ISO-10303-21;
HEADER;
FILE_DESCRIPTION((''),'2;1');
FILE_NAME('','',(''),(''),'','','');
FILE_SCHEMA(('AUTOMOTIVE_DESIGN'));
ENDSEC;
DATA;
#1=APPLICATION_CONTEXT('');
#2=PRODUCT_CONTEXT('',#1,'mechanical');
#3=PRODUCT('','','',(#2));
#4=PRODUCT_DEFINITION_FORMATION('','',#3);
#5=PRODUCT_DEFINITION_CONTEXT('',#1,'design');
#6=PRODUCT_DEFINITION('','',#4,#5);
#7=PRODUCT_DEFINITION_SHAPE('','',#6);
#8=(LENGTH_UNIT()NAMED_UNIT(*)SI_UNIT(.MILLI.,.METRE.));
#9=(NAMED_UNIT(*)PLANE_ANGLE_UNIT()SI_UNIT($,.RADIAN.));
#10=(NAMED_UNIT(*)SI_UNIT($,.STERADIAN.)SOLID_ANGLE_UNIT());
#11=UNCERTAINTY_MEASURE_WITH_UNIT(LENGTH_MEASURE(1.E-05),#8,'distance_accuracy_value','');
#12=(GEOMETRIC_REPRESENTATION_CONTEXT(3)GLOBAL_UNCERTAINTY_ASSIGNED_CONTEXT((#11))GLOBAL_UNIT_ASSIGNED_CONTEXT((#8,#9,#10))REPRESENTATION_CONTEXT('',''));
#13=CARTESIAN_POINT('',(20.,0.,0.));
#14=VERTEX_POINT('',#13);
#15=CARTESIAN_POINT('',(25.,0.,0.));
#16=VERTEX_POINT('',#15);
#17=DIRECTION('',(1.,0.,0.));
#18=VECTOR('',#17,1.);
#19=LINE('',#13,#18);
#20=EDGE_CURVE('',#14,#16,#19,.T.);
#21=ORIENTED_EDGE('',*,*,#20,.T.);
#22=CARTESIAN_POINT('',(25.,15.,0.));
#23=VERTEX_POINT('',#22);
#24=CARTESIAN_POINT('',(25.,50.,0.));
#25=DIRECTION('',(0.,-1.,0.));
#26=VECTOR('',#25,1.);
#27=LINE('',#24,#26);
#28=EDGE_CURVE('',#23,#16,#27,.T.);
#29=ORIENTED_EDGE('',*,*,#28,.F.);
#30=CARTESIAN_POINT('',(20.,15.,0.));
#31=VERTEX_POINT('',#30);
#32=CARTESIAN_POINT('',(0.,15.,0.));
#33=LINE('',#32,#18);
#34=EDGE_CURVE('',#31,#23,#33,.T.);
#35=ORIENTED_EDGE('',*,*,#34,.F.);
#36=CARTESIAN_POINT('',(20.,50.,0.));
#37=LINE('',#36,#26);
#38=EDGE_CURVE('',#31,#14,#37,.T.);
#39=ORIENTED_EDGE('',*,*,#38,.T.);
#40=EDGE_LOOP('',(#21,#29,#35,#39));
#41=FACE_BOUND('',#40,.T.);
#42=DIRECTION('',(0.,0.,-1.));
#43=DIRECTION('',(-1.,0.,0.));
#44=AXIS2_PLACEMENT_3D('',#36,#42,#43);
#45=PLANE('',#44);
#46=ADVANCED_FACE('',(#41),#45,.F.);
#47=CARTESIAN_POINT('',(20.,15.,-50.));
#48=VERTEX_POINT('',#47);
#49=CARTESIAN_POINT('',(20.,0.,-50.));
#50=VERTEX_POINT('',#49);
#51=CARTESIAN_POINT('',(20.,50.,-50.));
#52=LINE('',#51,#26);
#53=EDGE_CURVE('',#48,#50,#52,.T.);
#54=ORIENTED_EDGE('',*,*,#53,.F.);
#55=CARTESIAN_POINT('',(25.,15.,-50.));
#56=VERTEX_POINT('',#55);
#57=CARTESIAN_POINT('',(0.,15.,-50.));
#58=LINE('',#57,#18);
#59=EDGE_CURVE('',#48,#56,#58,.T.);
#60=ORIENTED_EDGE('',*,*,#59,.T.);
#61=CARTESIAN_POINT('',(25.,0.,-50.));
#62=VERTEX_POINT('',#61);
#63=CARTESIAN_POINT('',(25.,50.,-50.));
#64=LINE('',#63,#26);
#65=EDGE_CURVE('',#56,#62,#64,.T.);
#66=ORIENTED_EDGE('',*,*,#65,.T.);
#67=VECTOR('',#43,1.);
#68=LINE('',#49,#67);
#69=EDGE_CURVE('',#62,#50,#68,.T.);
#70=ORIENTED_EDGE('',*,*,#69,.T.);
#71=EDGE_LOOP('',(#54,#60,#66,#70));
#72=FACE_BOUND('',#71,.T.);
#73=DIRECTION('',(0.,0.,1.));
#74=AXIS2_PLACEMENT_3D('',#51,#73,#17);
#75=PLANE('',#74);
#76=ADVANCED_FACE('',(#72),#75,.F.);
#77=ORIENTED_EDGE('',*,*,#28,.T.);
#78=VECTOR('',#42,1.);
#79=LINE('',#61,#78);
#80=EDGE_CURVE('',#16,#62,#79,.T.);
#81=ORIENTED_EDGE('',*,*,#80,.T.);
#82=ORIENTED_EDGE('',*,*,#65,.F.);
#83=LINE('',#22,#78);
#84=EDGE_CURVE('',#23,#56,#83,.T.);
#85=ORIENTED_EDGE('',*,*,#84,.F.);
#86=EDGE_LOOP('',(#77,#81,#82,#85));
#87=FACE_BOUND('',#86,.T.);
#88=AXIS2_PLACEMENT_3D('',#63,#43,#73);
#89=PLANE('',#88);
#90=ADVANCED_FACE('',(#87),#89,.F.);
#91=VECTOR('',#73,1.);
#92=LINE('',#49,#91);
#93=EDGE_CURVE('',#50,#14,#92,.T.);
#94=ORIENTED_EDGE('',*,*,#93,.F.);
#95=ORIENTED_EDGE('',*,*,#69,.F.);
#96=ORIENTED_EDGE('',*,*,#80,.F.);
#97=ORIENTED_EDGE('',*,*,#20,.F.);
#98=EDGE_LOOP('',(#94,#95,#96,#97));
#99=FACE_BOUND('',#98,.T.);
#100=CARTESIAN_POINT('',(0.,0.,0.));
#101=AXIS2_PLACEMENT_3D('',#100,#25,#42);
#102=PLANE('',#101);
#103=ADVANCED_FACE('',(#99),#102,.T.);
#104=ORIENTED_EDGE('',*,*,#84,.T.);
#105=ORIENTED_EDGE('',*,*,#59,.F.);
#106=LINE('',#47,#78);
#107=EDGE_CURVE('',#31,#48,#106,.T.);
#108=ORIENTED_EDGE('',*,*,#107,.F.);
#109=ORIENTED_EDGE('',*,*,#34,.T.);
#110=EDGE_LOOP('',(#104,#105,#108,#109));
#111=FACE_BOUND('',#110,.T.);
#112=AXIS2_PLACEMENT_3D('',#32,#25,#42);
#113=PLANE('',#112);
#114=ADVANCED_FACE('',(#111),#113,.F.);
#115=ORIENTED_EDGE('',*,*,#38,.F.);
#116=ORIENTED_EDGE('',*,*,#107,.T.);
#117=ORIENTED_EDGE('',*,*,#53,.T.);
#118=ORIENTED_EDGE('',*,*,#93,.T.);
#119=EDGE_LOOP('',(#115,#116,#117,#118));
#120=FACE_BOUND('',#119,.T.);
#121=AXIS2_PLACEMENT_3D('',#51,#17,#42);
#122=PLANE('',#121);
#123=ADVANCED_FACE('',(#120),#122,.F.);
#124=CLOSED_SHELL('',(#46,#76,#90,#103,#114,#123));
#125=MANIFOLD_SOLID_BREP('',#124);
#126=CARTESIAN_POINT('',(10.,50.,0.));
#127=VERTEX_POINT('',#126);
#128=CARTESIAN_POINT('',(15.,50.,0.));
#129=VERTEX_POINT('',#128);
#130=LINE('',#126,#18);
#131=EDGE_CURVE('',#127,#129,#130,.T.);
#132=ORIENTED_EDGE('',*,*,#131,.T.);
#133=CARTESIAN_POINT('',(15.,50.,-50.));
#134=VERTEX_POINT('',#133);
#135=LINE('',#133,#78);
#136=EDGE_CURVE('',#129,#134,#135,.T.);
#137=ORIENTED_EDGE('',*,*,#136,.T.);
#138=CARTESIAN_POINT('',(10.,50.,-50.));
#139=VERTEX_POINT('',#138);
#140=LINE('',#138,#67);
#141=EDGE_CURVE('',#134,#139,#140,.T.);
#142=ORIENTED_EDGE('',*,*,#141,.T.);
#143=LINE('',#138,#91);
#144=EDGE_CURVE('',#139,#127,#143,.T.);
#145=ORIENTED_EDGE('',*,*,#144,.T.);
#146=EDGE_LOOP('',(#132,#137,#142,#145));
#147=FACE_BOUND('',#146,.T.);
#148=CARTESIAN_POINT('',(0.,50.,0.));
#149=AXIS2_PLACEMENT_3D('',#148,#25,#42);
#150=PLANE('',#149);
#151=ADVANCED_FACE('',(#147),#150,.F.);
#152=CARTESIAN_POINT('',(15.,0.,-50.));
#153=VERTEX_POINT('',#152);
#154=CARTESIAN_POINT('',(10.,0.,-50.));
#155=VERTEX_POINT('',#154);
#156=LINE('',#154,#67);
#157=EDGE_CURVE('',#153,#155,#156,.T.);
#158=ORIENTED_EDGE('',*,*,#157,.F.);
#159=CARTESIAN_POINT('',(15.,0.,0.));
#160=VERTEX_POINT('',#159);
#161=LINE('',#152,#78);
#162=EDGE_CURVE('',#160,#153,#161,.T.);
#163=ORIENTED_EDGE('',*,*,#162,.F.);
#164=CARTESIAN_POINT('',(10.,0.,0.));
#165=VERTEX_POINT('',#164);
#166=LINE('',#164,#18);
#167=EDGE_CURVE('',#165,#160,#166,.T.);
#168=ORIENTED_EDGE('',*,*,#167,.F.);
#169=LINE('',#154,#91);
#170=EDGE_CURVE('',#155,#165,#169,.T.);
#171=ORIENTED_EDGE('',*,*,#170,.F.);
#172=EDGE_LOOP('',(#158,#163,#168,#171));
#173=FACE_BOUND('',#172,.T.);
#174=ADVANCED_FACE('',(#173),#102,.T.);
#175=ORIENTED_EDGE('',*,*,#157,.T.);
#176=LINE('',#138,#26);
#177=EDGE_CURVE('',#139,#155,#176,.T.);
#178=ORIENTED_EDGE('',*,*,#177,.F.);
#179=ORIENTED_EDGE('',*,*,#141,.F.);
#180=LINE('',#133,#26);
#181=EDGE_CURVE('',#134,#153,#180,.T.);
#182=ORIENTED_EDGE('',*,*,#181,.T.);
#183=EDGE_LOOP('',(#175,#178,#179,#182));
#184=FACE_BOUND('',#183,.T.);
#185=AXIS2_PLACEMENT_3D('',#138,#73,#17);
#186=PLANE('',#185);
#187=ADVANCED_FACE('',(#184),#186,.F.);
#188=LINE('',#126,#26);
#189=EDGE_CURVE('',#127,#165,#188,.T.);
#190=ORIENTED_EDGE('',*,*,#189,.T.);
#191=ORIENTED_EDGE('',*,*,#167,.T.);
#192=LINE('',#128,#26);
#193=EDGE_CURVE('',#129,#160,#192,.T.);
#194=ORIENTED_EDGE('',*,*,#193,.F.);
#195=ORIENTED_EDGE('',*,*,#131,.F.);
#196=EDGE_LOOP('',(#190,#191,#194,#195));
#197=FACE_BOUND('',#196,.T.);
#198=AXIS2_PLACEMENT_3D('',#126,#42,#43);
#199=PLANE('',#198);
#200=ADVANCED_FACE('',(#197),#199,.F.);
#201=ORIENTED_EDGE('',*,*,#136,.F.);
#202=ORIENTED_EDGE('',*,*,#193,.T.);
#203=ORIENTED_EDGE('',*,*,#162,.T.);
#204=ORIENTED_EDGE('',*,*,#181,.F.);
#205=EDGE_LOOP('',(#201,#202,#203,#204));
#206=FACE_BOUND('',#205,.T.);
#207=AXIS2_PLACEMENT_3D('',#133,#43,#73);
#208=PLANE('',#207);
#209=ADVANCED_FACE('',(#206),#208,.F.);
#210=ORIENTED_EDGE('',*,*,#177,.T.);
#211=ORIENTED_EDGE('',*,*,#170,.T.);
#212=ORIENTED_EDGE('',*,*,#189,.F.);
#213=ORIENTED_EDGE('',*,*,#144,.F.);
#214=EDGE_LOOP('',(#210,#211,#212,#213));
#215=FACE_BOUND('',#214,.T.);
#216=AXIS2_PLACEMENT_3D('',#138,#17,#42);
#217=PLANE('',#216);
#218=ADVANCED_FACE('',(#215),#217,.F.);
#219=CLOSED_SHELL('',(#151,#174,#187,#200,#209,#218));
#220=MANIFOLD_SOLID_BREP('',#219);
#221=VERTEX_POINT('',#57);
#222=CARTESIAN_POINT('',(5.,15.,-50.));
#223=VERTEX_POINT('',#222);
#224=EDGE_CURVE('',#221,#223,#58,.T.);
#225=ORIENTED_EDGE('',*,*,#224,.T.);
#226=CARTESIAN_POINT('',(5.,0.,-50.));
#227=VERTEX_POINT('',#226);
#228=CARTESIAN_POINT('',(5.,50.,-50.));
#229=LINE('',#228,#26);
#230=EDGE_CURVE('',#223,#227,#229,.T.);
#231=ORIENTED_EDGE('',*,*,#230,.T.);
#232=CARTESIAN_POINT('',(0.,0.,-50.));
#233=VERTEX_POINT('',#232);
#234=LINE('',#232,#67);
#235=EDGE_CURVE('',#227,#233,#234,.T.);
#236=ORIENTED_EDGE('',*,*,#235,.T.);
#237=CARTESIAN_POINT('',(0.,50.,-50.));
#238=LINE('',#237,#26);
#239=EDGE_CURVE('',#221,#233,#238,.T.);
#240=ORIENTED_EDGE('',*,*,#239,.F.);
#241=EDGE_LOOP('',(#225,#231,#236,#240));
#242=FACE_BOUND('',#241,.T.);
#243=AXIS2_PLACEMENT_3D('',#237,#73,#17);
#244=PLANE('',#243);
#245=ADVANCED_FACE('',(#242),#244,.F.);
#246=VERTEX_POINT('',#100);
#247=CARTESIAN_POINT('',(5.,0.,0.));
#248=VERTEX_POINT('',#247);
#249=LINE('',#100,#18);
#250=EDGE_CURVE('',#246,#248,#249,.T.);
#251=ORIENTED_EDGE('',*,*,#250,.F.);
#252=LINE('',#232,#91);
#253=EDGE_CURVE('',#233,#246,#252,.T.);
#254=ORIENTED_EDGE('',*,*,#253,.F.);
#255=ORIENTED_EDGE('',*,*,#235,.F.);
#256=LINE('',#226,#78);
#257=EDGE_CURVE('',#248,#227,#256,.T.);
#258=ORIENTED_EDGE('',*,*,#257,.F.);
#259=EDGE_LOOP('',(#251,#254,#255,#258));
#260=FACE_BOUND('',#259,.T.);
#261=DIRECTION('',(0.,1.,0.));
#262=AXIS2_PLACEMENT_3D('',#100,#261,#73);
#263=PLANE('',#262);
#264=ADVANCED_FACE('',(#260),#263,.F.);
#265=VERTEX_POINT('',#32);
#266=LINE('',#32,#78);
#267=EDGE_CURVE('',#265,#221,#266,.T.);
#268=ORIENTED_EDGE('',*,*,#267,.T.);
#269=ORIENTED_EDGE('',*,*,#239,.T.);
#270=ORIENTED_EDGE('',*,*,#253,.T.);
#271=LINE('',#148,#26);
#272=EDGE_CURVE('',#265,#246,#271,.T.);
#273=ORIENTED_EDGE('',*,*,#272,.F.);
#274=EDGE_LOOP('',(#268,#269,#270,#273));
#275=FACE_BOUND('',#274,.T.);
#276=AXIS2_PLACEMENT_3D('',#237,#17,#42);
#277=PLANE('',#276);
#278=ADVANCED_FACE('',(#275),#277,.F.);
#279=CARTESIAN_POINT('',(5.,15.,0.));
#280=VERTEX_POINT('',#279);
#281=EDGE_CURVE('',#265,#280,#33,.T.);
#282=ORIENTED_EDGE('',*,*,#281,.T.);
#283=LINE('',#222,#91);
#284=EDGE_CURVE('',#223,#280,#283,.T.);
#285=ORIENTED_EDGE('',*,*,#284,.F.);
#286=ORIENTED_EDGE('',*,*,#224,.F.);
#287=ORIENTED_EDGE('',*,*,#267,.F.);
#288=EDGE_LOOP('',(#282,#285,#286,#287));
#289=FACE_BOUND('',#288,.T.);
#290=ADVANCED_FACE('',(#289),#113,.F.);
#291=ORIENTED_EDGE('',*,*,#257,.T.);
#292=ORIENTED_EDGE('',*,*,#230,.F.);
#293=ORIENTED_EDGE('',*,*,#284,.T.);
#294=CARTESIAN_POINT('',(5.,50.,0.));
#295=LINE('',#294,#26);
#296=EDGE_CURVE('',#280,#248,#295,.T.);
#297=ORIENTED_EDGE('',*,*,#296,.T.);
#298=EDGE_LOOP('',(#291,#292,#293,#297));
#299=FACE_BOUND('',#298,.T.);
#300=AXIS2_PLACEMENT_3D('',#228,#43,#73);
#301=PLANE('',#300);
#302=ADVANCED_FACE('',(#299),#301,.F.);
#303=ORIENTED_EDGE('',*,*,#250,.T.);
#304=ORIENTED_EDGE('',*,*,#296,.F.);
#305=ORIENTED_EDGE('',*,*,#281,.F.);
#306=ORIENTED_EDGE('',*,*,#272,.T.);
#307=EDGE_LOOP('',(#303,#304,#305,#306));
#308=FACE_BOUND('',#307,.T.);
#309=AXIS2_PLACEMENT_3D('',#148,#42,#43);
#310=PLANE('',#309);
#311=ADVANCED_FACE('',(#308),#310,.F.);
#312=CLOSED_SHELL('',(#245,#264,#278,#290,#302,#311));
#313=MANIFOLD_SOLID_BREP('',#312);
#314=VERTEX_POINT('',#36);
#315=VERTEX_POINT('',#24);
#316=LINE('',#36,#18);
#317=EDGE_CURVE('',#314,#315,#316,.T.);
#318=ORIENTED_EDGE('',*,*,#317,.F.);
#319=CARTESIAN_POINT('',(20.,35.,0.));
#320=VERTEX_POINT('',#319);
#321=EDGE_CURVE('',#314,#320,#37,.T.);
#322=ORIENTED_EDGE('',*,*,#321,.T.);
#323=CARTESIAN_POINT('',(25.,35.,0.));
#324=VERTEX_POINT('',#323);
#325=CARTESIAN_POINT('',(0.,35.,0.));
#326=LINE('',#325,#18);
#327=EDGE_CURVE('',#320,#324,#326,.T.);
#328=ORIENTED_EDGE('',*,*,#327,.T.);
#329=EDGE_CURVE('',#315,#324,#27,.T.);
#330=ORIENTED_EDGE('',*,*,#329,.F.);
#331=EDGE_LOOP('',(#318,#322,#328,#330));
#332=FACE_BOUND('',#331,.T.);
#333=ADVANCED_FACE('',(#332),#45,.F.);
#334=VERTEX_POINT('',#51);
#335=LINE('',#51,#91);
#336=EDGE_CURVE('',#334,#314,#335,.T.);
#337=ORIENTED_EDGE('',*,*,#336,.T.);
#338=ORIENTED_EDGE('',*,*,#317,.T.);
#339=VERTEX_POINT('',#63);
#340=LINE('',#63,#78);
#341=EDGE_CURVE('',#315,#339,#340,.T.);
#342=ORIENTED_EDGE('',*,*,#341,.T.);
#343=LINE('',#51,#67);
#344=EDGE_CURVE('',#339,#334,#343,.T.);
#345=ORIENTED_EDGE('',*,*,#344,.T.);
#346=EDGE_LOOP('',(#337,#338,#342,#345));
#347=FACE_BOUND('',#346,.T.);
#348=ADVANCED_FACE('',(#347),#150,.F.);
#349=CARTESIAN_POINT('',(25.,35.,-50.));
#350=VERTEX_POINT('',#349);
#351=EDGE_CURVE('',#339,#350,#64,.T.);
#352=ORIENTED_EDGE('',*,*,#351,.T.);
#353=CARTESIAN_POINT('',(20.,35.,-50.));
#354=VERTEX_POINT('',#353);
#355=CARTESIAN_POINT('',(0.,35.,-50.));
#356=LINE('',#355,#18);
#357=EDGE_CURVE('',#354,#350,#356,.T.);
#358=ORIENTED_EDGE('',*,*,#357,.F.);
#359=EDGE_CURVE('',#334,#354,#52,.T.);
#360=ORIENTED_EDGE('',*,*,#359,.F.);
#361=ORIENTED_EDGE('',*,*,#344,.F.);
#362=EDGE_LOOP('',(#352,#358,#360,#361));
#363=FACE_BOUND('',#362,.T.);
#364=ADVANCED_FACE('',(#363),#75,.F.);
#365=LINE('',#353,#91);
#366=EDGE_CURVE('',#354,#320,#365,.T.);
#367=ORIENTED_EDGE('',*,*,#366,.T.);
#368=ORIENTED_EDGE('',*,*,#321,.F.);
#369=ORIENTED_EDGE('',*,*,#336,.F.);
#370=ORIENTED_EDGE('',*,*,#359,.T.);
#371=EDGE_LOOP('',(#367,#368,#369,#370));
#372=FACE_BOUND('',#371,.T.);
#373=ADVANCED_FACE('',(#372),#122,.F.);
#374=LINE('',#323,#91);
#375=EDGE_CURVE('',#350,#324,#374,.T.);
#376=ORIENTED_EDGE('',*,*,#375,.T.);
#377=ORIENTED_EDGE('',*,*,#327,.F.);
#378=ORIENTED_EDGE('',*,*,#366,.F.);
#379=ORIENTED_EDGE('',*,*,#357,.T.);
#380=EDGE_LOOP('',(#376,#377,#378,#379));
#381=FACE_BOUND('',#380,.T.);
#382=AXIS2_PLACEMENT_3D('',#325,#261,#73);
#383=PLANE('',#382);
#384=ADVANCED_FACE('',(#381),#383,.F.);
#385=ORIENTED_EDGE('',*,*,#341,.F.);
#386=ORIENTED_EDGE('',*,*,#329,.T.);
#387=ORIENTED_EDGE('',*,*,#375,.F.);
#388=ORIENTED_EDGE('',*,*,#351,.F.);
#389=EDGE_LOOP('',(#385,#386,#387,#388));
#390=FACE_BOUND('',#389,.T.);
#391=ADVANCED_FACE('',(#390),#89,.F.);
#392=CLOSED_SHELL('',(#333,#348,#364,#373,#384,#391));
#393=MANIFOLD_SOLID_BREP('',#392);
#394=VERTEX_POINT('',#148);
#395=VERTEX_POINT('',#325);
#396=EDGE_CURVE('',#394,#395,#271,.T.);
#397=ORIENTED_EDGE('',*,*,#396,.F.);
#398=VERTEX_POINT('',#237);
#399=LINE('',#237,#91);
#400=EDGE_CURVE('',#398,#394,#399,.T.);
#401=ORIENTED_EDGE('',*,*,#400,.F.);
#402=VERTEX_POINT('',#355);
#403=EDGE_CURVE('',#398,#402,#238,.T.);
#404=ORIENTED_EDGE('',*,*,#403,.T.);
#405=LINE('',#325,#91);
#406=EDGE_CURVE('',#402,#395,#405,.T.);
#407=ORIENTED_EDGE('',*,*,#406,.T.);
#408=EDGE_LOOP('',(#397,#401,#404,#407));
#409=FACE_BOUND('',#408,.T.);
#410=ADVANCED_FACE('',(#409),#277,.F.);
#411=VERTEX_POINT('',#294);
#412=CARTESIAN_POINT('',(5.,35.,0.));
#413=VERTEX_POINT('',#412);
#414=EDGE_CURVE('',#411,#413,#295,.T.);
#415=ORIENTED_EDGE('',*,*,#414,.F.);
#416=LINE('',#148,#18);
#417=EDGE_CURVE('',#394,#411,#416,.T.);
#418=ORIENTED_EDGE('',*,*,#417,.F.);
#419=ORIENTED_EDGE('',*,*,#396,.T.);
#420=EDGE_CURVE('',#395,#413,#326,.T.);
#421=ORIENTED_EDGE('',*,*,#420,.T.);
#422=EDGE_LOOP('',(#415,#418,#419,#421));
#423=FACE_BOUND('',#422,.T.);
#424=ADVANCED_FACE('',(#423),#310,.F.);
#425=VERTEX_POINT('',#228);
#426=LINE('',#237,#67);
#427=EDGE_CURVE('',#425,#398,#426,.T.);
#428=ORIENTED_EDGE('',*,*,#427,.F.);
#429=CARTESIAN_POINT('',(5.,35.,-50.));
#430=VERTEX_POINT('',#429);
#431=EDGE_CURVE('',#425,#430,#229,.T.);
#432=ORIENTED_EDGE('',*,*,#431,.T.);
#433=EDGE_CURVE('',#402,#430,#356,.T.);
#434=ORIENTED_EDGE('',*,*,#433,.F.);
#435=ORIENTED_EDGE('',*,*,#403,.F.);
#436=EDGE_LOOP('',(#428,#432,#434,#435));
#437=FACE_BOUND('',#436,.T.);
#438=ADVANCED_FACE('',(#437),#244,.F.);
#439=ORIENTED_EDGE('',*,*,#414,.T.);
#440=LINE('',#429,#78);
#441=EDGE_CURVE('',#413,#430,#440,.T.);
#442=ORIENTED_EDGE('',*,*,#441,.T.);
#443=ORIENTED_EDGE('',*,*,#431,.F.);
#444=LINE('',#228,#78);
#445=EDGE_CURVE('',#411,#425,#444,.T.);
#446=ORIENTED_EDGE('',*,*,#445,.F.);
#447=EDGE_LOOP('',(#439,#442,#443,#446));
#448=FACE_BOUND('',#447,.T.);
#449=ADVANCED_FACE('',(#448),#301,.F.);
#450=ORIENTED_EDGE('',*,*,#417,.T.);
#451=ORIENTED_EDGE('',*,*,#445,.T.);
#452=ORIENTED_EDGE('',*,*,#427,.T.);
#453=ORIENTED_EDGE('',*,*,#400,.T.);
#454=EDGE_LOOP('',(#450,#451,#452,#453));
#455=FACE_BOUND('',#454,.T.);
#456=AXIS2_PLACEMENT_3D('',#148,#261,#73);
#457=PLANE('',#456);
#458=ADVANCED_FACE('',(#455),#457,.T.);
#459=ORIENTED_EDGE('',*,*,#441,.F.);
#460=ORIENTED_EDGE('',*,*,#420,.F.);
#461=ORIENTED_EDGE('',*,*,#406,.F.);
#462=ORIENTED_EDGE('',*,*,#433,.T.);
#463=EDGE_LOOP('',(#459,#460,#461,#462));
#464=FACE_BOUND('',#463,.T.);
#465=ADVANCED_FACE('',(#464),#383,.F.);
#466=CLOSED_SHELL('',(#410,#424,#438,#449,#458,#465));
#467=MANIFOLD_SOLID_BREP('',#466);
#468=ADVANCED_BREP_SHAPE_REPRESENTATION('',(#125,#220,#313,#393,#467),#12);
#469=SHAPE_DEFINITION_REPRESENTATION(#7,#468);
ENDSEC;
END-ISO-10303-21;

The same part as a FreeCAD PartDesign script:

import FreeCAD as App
import Part
import Sketcher


def add_polygon(sketch, points):
    """Adds a closed chain of lines whose ends are joined by coincident constraints."""
    first, n = sketch.GeometryCount, len(points)
    for a, b in zip(points, points[1:] + points[:1]):
        sketch.addGeometry(Part.LineSegment(App.Vector(*a, 0), App.Vector(*b, 0)), False)
    for i in range(n):
        sketch.addConstraint(Sketcher.Constraint("Coincident", first + i, 2, first + (i + 1) % n, 1))

doc = App.newDocument("Part")
body = doc.addObject("PartDesign::Body", "Body")

sketch1 = body.newObject("Sketcher::SketchObject", "Sketch")
sketch1.AttachmentSupport = (doc.getObject("XZ_Plane"), [""])
sketch1.MapMode = "FlatFace"
add_polygon(sketch1, [(10, -50), (10, 0), (15, 0), (15, -50)])
sketch1.addConstraint(Sketcher.Constraint("Vertical", 0))
sketch1.addConstraint(Sketcher.Constraint("Horizontal", 1))
sketch1.addConstraint(Sketcher.Constraint("Vertical", 2))
sketch1.addConstraint(Sketcher.Constraint("Horizontal", 3))
sketch1.addConstraint(Sketcher.Constraint("PointOnObject", 0, 2, -1))
sketch1.addConstraint(Sketcher.Constraint("DistanceX", 1, 1, 1, 2, 5.0))
sketch1.addConstraint(Sketcher.Constraint("DistanceY", 0, 1, 0, 2, 50.0))
sketch1.addConstraint(Sketcher.Constraint("DistanceX", -1, 1, 0, 2, 10.0))
pad1 = body.newObject("PartDesign::Pad", "Pad")
pad1.Profile = sketch1
pad1.Length = 50
pad1.Reversed = True
body2 = doc.addObject("PartDesign::Body", "Body001")

sketch2 = body2.newObject("Sketcher::SketchObject", "Sketch001")
sketch2.AttachmentSupport = (doc.getObject("XZ_Plane001"), [""])
sketch2.MapMode = "FlatFace"
add_polygon(sketch2, [(0, -50), (0, 0), (5, 0), (5, -50)])
sketch2.addConstraint(Sketcher.Constraint("Vertical", 0))
sketch2.addConstraint(Sketcher.Constraint("Horizontal", 1))
sketch2.addConstraint(Sketcher.Constraint("Vertical", 2))
sketch2.addConstraint(Sketcher.Constraint("Horizontal", 3))
sketch2.addConstraint(Sketcher.Constraint("Coincident", 0, 2, -1, 1))
sketch2.addConstraint(Sketcher.Constraint("DistanceX", 1, 1, 1, 2, 5.0))
sketch2.addConstraint(Sketcher.Constraint("DistanceY", 0, 1, 0, 2, 50.0))
pad2 = body2.newObject("PartDesign::Pad", "Pad001")
pad2.Profile = sketch2
pad2.Length = 50
pad2.Reversed = True
body3 = doc.addObject("PartDesign::Body", "Body002")

sketch3 = body3.newObject("Sketcher::SketchObject", "Sketch002")
sketch3.AttachmentSupport = (doc.getObject("XZ_Plane002"), [""])
sketch3.MapMode = "FlatFace"
add_polygon(sketch3, [(20, -50), (20, 0), (25, 0), (25, -50)])
sketch3.addConstraint(Sketcher.Constraint("Vertical", 0))
sketch3.addConstraint(Sketcher.Constraint("Horizontal", 1))
sketch3.addConstraint(Sketcher.Constraint("Vertical", 2))
sketch3.addConstraint(Sketcher.Constraint("Horizontal", 3))
sketch3.addConstraint(Sketcher.Constraint("PointOnObject", 0, 2, -1))
sketch3.addConstraint(Sketcher.Constraint("DistanceX", 1, 1, 1, 2, 5.0))
sketch3.addConstraint(Sketcher.Constraint("DistanceY", 0, 1, 0, 2, 50.0))
sketch3.addConstraint(Sketcher.Constraint("DistanceX", -1, 1, 0, 2, 20.0))
pad3 = body3.newObject("PartDesign::Pad", "Pad002")
pad3.Profile = sketch3
pad3.Length = 50
pad3.Reversed = True
body4 = doc.addObject("PartDesign::Body", "Body003")

sketch4 = body4.newObject("Sketcher::SketchObject", "Sketch003")
sketch4.AttachmentSupport = (doc.getObject("YZ_Plane003"), [""])
sketch4.MapMode = "FlatFace"
sketch4.AttachmentOffset = App.Placement(App.Vector(0, 0, 25), App.Rotation())
add_polygon(sketch4, [(35, 0), (15, 0), (15, -50), (35, -50)])
sketch4.addConstraint(Sketcher.Constraint("Horizontal", 0))
sketch4.addConstraint(Sketcher.Constraint("Vertical", 1))
sketch4.addConstraint(Sketcher.Constraint("Horizontal", 2))
sketch4.addConstraint(Sketcher.Constraint("Vertical", 3))
sketch4.addConstraint(Sketcher.Constraint("PointOnObject", 0, 2, -1))
sketch4.addConstraint(Sketcher.Constraint("DistanceX", 0, 2, 0, 1, 20.0))
sketch4.addConstraint(Sketcher.Constraint("DistanceY", 1, 2, 1, 1, 50.0))
sketch4.addConstraint(Sketcher.Constraint("DistanceX", -1, 1, 0, 2, 15.0))
pad4 = body4.newObject("PartDesign::Pad", "Pad003")
pad4.Profile = sketch4
pad4.Length = 26
pad4.Reversed = True
body3.AllowCompound = True
doc.recompute()

body5 = doc.addObject("PartDesign::Body", "Body004")
body5.BaseFeature = body4
boolean = body3.newObject("PartDesign::Boolean", "Boolean")
boolean.Type = "Cut"
boolean.addObjects([body5])
doc.recompute()
body2.AllowCompound = True
doc.recompute()

boolean2 = body2.newObject("PartDesign::Boolean", "Boolean001")
boolean2.Type = "Cut"
boolean2.addObjects([body4])

doc.recompute()
